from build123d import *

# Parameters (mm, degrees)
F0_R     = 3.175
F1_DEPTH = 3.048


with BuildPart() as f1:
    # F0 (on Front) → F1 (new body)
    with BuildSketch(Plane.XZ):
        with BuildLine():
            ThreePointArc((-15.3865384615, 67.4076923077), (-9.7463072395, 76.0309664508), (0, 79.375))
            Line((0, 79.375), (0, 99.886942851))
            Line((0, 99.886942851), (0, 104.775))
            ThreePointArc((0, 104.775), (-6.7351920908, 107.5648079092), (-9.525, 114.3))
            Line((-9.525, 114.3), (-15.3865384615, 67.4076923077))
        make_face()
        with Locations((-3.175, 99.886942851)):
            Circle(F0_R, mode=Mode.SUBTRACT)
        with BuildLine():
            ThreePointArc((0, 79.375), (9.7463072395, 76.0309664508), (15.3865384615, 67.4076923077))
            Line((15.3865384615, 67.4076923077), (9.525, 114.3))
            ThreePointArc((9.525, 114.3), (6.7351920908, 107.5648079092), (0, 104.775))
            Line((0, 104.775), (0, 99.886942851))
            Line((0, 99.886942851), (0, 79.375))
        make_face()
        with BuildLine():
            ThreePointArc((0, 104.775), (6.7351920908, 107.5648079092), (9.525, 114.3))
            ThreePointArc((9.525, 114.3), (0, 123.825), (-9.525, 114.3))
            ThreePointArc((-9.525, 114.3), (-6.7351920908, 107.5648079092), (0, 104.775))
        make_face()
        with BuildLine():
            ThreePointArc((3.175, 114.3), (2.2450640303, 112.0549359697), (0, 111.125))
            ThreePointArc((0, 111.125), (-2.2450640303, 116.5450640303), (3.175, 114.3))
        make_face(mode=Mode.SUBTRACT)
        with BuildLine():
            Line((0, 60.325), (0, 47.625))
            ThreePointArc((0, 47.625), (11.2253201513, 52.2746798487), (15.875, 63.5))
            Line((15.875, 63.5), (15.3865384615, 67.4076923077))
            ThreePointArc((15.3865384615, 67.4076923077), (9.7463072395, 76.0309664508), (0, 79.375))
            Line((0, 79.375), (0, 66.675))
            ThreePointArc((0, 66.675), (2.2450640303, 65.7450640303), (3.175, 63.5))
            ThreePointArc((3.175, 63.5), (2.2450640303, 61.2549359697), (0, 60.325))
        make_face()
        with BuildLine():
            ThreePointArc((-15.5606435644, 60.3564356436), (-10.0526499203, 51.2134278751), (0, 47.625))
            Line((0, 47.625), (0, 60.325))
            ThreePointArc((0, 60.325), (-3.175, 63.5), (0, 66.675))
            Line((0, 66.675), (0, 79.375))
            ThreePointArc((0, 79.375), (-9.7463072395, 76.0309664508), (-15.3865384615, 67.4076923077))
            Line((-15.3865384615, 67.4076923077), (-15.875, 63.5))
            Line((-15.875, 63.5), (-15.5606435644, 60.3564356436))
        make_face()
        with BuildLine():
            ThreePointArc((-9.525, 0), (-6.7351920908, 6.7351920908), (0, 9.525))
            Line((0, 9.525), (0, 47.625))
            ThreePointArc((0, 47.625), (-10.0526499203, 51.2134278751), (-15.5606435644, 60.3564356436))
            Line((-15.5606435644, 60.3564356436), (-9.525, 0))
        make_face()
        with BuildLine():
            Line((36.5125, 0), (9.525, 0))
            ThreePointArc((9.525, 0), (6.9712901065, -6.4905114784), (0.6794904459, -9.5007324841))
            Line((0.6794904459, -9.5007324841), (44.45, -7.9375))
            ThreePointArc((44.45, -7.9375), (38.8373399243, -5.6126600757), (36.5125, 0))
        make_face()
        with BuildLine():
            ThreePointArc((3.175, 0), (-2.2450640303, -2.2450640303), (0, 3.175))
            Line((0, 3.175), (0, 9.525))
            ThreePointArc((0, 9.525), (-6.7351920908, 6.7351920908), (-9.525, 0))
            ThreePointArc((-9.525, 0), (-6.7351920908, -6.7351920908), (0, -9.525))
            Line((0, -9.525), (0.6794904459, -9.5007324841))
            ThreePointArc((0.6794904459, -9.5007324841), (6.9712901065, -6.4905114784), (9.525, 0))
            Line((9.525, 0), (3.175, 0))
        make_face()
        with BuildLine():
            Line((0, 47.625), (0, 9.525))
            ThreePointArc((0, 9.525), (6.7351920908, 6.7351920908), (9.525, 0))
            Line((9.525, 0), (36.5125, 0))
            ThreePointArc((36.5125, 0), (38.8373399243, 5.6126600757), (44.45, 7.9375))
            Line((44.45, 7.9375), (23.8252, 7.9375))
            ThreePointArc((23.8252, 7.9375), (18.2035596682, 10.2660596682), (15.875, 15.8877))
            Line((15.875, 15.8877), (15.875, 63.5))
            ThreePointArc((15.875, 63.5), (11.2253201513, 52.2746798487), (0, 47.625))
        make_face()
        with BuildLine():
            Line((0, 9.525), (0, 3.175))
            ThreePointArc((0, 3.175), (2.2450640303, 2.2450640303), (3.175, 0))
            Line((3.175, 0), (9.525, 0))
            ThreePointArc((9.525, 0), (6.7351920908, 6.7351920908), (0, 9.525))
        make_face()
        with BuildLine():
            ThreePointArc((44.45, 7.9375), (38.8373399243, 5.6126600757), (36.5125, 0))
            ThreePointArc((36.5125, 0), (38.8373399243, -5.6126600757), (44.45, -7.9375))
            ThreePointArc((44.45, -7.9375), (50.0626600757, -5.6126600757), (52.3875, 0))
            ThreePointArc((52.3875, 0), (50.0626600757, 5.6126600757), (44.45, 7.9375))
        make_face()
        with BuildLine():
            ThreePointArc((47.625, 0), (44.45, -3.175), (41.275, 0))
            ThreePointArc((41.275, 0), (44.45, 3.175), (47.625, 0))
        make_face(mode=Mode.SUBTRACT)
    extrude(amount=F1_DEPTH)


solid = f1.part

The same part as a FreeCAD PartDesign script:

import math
import FreeCAD as App
import Part
import Sketcher
from FreeCAD import Vector
Q = App.Units.Quantity

doc = App.newDocument("Part")
body = doc.addObject("PartDesign::Body", "Body")

# Sketch on XZ plane
sketch1 = doc.addObject("Sketcher::SketchObject", "Sketch")
body.addObject(sketch1)
sketch1.AttachmentSupport = (doc.XZ_Plane, [""])
sketch1.MapMode = "FlatFace"
sketch1.addGeometry(Part.LineSegment(Vector(-9.525, 114.3, 0), Vector(-15.386538, 67.407692, 0)), False)
sketch1.addGeometry(Part.LineSegment(Vector(-15.386538, 67.407692, 0), Vector(-15.875, 63.5, 0)), False)
sketch1.addGeometry(Part.LineSegment(Vector(-15.875, 63.5, 0), Vector(-15.560644, 60.356436, 0)), False)
sketch1.addGeometry(Part.LineSegment(Vector(-15.560644, 60.356436, 0), Vector(-9.525, 0, 0)), False)
sketch1.addGeometry(Part.ArcOfCircle(Part.Circle(Vector(0, 0, 0), Vector(0, 0, 1), 9.525), math.radians(180), math.radians(270)), False)
sketch1.addGeometry(Part.LineSegment(Vector(0, -9.525, 0), Vector(0.67949, -9.500732, 0)), False)
sketch1.addGeometry(Part.LineSegment(Vector(0.67949, -9.500732, 0), Vector(44.45, -7.9375, 0)), False)
sketch1.addGeometry(Part.ArcOfCircle(Part.Circle(Vector(44.45, 0, 0), Vector(0, 0, 1), 7.9375), math.radians(-90), math.radians(0)), False)
sketch1.addGeometry(Part.ArcOfCircle(Part.Circle(Vector(44.45, 0, 0), Vector(0, 0, 1), 7.9375), math.radians(0), math.radians(90)), False)
sketch1.addGeometry(Part.LineSegment(Vector(44.45, 7.9375, 0), Vector(23.8252, 7.9375, 0)), False)
sketch1.addGeometry(Part.ArcOfCircle(Part.Circle(Vector(23.8252, 15.8877, 0), Vector(0, 0, 1), 7.9502), math.radians(180), math.radians(270)), False)
sketch1.addGeometry(Part.LineSegment(Vector(15.875, 15.8877, 0), Vector(15.875, 63.5, 0)), False)
sketch1.addGeometry(Part.LineSegment(Vector(15.875, 63.5, 0), Vector(15.386538, 67.407692, 0)), False)
sketch1.addGeometry(Part.LineSegment(Vector(15.386538, 67.407692, 0), Vector(9.525, 114.3, 0)), False)
sketch1.addGeometry(Part.ArcOfCircle(Part.Circle(Vector(0, 114.3, 0), Vector(0, 0, 1), 9.525), math.radians(0), math.radians(180)), False)
sketch1.addGeometry(Part.ArcOfCircle(Part.Circle(Vector(0, 0, 0), Vector(0, 0, 1), 3.175), math.radians(90), math.radians(360)), False)
sketch1.addGeometry(Part.ArcOfCircle(Part.Circle(Vector(0, 0, 0), Vector(0, 0, 1), 3.175), math.radians(0), math.radians(90)), False)
sketch1.addGeometry(Part.Circle(Vector(44.45, 0, 0), Vector(0, 0, 1), 3.175), False)
sketch1.addGeometry(Part.ArcOfCircle(Part.Circle(Vector(0, 63.5, 0), Vector(0, 0, 1), 3.175), math.radians(0), math.radians(90)), False)
sketch1.addGeometry(Part.ArcOfCircle(Part.Circle(Vector(0, 63.5, 0), Vector(0, 0, 1), 3.175), math.radians(-90), math.radians(0)), False)
sketch1.addGeometry(Part.ArcOfCircle(Part.Circle(Vector(0, 63.5, 0), Vector(0, 0, 1), 3.175), math.radians(90), math.radians(270)), False)
sketch1.addGeometry(Part.Circle(Vector(-3.175, 99.886943, 0), Vector(0, 0, 1), 3.175), False)
sketch1.addGeometry(Part.ArcOfCircle(Part.Circle(Vector(0, 114.3, 0), Vector(0, 0, 1), 3.175), math.radians(0), math.radians(270)), False)
sketch1.addGeometry(Part.ArcOfCircle(Part.Circle(Vector(0, 114.3, 0), Vector(0, 0, 1), 3.175), math.radians(-90), math.radians(0)), False)
sketch1.addConstraint(Sketcher.Constraint("Coincident", 0, 2, 1, 1))
sketch1.addConstraint(Sketcher.Constraint("Coincident", 1, 2, 2, 1))
sketch1.addConstraint(Sketcher.Constraint("Coincident", 2, 2, 3, 1))
sketch1.addConstraint(Sketcher.Constraint("Coincident", 3, 2, 4, 1))
sketch1.addConstraint(Sketcher.Constraint("Coincident", 4, 2, 5, 1))
sketch1.addConstraint(Sketcher.Constraint("Coincident", 5, 2, 6, 1))
sketch1.addConstraint(Sketcher.Constraint("Coincident", 6, 2, 7, 1))
sketch1.addConstraint(Sketcher.Constraint("Tangent", 7, 2, 8, 1))
sketch1.addConstraint(Sketcher.Constraint("Tangent", 8, 2, 9, 1))
sketch1.addConstraint(Sketcher.Constraint("Tangent", 9, 2, 10, 2))
sketch1.addConstraint(Sketcher.Constraint("Tangent", 10, 1, 11, 1))
sketch1.addConstraint(Sketcher.Constraint("Coincident", 11, 2, 12, 1))
sketch1.addConstraint(Sketcher.Constraint("Coincident", 12, 2, 13, 1))
sketch1.addConstraint(Sketcher.Constraint("Coincident", 13, 2, 14, 1))
sketch1.addConstraint(Sketcher.Constraint("Coincident", 14, 2, 0, 1))
sketch1.addConstraint(Sketcher.Constraint("Tangent", 15, 1, 16, 2))
sketch1.addConstraint(Sketcher.Constraint("Coincident", 16, 1, 15, 2))
sketch1.addConstraint(Sketcher.Constraint("Tangent", 18, 1, 19, 2))
sketch1.addConstraint(Sketcher.Constraint("Tangent", 19, 1, 20, 2))
sketch1.addConstraint(Sketcher.Constraint("Tangent", 20, 1, 18, 2))
sketch1.addConstraint(Sketcher.Constraint("Tangent", 22, 1, 23, 2))
sketch1.addConstraint(Sketcher.Constraint("Coincident", 23, 1, 22, 2))
sketch1.addConstraint(Sketcher.Constraint("Horizontal", 9))
sketch1.addConstraint(Sketcher.Constraint("Vertical", 11))
sketch1.addConstraint(Sketcher.Constraint("Coincident", 4, 3, -1, 1))
sketch1.addConstraint(Sketcher.Constraint("Coincident", 15, 3, -1, 1))
sketch1.addConstraint(Sketcher.Constraint("Coincident", 17, 3, 7, 3))
sketch1.addConstraint(Sketcher.Constraint("Coincident", 22, 3, 14, 3))
sketch1.addConstraint(Sketcher.Constraint("Equal", 7, 8))
sketch1.addConstraint(Sketcher.Constraint("Equal", 4, 14))
sketch1.addConstraint(Sketcher.Constraint("Equal", 16, 17))
sketch1.addConstraint(Sketcher.Constraint("Equal", 17, 18))
sketch1.addConstraint(Sketcher.Constraint("Equal", 20, 21))
sketch1.addConstraint(Sketcher.Constraint("Equal", 21, 22))
sketch1.addConstraint(Sketcher.Constraint("Symmetric", 1, 2, 11, 2, -2))
sketch1.addConstraint(Sketcher.Constraint("Symmetric", 0, 2, 12, 2, -2))
sketch1.addConstraint(Sketcher.Constraint("Symmetric", 13, 2, 14, 2, -2))
sketch1.addConstraint(Sketcher.Constraint("Symmetric", 6, 2, 8, 2, -1))
sketch1.addConstraint(Sketcher.Constraint("PointOnObject", 18, 3, -2))
sketch1.addConstraint(Sketcher.Constraint("PointOnObject", 3, 2, -1))
sketch1.addConstraint(Sketcher.Constraint("PointOnObject", 4, 2, -2))
sketch1.addConstraint(Sketcher.Constraint("PointOnObject", 7, 2, -1))
sketch1.addConstraint(Sketcher.Constraint("PointOnObject", 15, 1, -2))
sketch1.addConstraint(Sketcher.Constraint("PointOnObject", 16, 1, -1))
sketch1.addConstraint(Sketcher.Constraint("PointOnObject", 19, 1, -2))
sketch1.addConstraint(Sketcher.Constraint("PointOnObject", 20, 1, -2))
sketch1.addConstraint(Sketcher.Constraint("PointOnObject", 23, 1, -2))
sketch1.addConstraint(Sketcher.Constraint("Parallel", 0, 1))
sketch1.addConstraint(Sketcher.Constraint("Parallel", 2, 3))
sketch1.addConstraint(Sketcher.Constraint("Parallel", 5, 6))
sketch1.addConstraint(Sketcher.Constraint("Horizontal", 20, 3, 1, 2))
sketch1.addConstraint(Sketcher.Constraint("Horizontal", 23, 3, 13, 2))
sketch1.addConstraint(Sketcher.Constraint("Horizontal", 11, 2, 18, 1))
sketch1.addConstraint(Sketcher.Constraint("Horizontal", 14, 2, 22, 1))
sketch1.addConstraint(Sketcher.Constraint("Diameter", 17, Q("0.25 in")))
sketch1.addConstraint(Sketcher.Constraint("Radius", 4, Q("0.375 in")))
sketch1.addConstraint(Sketcher.Constraint("Radius", 7, Q("0.3125 in")))
sketch1.addConstraint(Sketcher.Constraint("Radius", 10, Q("0.313 in")))
sketch1.addConstraint(Sketcher.Constraint("DistanceY", 18, 3, 14, 3, Q("2 in")))
sketch1.addConstraint(Sketcher.Constraint("DistanceY", -1, 1, 14, 3, Q("4.5 in")))
sketch1.addConstraint(Sketcher.Constraint("DistanceX", 1, 2, 21, 3, Q("0.5 in")))
sketch1.addConstraint(Sketcher.Constraint("DistanceX", 21, 3, 13, 2, Q("0.5 in")))
sketch1.addConstraint(Sketcher.Constraint("DistanceX", 9, 2, 9, 1, Q("0.812 in")))
sketch1.addConstraint(Sketcher.Constraint("DistanceX", 0, 2, -1, 1, Q("15.386538 mm")))
sketch1.addConstraint(Sketcher.Constraint("DistanceX", -1, 1, 5, 2, Q("0.67949 mm")))
sketch1.addConstraint(Sketcher.Constraint("DistanceY", 0, 2, 21, 3, Q("32.479251 mm")))
sketch1.addConstraint(Sketcher.Constraint("Distance", 2, Q("3.159243 mm")))
pad1 = doc.addObject("PartDesign::Pad", "Pad")
body.addObject(pad1)
pad1.Profile = sketch1
pad1.Length = Q("0.12 in")

doc.recompute()
